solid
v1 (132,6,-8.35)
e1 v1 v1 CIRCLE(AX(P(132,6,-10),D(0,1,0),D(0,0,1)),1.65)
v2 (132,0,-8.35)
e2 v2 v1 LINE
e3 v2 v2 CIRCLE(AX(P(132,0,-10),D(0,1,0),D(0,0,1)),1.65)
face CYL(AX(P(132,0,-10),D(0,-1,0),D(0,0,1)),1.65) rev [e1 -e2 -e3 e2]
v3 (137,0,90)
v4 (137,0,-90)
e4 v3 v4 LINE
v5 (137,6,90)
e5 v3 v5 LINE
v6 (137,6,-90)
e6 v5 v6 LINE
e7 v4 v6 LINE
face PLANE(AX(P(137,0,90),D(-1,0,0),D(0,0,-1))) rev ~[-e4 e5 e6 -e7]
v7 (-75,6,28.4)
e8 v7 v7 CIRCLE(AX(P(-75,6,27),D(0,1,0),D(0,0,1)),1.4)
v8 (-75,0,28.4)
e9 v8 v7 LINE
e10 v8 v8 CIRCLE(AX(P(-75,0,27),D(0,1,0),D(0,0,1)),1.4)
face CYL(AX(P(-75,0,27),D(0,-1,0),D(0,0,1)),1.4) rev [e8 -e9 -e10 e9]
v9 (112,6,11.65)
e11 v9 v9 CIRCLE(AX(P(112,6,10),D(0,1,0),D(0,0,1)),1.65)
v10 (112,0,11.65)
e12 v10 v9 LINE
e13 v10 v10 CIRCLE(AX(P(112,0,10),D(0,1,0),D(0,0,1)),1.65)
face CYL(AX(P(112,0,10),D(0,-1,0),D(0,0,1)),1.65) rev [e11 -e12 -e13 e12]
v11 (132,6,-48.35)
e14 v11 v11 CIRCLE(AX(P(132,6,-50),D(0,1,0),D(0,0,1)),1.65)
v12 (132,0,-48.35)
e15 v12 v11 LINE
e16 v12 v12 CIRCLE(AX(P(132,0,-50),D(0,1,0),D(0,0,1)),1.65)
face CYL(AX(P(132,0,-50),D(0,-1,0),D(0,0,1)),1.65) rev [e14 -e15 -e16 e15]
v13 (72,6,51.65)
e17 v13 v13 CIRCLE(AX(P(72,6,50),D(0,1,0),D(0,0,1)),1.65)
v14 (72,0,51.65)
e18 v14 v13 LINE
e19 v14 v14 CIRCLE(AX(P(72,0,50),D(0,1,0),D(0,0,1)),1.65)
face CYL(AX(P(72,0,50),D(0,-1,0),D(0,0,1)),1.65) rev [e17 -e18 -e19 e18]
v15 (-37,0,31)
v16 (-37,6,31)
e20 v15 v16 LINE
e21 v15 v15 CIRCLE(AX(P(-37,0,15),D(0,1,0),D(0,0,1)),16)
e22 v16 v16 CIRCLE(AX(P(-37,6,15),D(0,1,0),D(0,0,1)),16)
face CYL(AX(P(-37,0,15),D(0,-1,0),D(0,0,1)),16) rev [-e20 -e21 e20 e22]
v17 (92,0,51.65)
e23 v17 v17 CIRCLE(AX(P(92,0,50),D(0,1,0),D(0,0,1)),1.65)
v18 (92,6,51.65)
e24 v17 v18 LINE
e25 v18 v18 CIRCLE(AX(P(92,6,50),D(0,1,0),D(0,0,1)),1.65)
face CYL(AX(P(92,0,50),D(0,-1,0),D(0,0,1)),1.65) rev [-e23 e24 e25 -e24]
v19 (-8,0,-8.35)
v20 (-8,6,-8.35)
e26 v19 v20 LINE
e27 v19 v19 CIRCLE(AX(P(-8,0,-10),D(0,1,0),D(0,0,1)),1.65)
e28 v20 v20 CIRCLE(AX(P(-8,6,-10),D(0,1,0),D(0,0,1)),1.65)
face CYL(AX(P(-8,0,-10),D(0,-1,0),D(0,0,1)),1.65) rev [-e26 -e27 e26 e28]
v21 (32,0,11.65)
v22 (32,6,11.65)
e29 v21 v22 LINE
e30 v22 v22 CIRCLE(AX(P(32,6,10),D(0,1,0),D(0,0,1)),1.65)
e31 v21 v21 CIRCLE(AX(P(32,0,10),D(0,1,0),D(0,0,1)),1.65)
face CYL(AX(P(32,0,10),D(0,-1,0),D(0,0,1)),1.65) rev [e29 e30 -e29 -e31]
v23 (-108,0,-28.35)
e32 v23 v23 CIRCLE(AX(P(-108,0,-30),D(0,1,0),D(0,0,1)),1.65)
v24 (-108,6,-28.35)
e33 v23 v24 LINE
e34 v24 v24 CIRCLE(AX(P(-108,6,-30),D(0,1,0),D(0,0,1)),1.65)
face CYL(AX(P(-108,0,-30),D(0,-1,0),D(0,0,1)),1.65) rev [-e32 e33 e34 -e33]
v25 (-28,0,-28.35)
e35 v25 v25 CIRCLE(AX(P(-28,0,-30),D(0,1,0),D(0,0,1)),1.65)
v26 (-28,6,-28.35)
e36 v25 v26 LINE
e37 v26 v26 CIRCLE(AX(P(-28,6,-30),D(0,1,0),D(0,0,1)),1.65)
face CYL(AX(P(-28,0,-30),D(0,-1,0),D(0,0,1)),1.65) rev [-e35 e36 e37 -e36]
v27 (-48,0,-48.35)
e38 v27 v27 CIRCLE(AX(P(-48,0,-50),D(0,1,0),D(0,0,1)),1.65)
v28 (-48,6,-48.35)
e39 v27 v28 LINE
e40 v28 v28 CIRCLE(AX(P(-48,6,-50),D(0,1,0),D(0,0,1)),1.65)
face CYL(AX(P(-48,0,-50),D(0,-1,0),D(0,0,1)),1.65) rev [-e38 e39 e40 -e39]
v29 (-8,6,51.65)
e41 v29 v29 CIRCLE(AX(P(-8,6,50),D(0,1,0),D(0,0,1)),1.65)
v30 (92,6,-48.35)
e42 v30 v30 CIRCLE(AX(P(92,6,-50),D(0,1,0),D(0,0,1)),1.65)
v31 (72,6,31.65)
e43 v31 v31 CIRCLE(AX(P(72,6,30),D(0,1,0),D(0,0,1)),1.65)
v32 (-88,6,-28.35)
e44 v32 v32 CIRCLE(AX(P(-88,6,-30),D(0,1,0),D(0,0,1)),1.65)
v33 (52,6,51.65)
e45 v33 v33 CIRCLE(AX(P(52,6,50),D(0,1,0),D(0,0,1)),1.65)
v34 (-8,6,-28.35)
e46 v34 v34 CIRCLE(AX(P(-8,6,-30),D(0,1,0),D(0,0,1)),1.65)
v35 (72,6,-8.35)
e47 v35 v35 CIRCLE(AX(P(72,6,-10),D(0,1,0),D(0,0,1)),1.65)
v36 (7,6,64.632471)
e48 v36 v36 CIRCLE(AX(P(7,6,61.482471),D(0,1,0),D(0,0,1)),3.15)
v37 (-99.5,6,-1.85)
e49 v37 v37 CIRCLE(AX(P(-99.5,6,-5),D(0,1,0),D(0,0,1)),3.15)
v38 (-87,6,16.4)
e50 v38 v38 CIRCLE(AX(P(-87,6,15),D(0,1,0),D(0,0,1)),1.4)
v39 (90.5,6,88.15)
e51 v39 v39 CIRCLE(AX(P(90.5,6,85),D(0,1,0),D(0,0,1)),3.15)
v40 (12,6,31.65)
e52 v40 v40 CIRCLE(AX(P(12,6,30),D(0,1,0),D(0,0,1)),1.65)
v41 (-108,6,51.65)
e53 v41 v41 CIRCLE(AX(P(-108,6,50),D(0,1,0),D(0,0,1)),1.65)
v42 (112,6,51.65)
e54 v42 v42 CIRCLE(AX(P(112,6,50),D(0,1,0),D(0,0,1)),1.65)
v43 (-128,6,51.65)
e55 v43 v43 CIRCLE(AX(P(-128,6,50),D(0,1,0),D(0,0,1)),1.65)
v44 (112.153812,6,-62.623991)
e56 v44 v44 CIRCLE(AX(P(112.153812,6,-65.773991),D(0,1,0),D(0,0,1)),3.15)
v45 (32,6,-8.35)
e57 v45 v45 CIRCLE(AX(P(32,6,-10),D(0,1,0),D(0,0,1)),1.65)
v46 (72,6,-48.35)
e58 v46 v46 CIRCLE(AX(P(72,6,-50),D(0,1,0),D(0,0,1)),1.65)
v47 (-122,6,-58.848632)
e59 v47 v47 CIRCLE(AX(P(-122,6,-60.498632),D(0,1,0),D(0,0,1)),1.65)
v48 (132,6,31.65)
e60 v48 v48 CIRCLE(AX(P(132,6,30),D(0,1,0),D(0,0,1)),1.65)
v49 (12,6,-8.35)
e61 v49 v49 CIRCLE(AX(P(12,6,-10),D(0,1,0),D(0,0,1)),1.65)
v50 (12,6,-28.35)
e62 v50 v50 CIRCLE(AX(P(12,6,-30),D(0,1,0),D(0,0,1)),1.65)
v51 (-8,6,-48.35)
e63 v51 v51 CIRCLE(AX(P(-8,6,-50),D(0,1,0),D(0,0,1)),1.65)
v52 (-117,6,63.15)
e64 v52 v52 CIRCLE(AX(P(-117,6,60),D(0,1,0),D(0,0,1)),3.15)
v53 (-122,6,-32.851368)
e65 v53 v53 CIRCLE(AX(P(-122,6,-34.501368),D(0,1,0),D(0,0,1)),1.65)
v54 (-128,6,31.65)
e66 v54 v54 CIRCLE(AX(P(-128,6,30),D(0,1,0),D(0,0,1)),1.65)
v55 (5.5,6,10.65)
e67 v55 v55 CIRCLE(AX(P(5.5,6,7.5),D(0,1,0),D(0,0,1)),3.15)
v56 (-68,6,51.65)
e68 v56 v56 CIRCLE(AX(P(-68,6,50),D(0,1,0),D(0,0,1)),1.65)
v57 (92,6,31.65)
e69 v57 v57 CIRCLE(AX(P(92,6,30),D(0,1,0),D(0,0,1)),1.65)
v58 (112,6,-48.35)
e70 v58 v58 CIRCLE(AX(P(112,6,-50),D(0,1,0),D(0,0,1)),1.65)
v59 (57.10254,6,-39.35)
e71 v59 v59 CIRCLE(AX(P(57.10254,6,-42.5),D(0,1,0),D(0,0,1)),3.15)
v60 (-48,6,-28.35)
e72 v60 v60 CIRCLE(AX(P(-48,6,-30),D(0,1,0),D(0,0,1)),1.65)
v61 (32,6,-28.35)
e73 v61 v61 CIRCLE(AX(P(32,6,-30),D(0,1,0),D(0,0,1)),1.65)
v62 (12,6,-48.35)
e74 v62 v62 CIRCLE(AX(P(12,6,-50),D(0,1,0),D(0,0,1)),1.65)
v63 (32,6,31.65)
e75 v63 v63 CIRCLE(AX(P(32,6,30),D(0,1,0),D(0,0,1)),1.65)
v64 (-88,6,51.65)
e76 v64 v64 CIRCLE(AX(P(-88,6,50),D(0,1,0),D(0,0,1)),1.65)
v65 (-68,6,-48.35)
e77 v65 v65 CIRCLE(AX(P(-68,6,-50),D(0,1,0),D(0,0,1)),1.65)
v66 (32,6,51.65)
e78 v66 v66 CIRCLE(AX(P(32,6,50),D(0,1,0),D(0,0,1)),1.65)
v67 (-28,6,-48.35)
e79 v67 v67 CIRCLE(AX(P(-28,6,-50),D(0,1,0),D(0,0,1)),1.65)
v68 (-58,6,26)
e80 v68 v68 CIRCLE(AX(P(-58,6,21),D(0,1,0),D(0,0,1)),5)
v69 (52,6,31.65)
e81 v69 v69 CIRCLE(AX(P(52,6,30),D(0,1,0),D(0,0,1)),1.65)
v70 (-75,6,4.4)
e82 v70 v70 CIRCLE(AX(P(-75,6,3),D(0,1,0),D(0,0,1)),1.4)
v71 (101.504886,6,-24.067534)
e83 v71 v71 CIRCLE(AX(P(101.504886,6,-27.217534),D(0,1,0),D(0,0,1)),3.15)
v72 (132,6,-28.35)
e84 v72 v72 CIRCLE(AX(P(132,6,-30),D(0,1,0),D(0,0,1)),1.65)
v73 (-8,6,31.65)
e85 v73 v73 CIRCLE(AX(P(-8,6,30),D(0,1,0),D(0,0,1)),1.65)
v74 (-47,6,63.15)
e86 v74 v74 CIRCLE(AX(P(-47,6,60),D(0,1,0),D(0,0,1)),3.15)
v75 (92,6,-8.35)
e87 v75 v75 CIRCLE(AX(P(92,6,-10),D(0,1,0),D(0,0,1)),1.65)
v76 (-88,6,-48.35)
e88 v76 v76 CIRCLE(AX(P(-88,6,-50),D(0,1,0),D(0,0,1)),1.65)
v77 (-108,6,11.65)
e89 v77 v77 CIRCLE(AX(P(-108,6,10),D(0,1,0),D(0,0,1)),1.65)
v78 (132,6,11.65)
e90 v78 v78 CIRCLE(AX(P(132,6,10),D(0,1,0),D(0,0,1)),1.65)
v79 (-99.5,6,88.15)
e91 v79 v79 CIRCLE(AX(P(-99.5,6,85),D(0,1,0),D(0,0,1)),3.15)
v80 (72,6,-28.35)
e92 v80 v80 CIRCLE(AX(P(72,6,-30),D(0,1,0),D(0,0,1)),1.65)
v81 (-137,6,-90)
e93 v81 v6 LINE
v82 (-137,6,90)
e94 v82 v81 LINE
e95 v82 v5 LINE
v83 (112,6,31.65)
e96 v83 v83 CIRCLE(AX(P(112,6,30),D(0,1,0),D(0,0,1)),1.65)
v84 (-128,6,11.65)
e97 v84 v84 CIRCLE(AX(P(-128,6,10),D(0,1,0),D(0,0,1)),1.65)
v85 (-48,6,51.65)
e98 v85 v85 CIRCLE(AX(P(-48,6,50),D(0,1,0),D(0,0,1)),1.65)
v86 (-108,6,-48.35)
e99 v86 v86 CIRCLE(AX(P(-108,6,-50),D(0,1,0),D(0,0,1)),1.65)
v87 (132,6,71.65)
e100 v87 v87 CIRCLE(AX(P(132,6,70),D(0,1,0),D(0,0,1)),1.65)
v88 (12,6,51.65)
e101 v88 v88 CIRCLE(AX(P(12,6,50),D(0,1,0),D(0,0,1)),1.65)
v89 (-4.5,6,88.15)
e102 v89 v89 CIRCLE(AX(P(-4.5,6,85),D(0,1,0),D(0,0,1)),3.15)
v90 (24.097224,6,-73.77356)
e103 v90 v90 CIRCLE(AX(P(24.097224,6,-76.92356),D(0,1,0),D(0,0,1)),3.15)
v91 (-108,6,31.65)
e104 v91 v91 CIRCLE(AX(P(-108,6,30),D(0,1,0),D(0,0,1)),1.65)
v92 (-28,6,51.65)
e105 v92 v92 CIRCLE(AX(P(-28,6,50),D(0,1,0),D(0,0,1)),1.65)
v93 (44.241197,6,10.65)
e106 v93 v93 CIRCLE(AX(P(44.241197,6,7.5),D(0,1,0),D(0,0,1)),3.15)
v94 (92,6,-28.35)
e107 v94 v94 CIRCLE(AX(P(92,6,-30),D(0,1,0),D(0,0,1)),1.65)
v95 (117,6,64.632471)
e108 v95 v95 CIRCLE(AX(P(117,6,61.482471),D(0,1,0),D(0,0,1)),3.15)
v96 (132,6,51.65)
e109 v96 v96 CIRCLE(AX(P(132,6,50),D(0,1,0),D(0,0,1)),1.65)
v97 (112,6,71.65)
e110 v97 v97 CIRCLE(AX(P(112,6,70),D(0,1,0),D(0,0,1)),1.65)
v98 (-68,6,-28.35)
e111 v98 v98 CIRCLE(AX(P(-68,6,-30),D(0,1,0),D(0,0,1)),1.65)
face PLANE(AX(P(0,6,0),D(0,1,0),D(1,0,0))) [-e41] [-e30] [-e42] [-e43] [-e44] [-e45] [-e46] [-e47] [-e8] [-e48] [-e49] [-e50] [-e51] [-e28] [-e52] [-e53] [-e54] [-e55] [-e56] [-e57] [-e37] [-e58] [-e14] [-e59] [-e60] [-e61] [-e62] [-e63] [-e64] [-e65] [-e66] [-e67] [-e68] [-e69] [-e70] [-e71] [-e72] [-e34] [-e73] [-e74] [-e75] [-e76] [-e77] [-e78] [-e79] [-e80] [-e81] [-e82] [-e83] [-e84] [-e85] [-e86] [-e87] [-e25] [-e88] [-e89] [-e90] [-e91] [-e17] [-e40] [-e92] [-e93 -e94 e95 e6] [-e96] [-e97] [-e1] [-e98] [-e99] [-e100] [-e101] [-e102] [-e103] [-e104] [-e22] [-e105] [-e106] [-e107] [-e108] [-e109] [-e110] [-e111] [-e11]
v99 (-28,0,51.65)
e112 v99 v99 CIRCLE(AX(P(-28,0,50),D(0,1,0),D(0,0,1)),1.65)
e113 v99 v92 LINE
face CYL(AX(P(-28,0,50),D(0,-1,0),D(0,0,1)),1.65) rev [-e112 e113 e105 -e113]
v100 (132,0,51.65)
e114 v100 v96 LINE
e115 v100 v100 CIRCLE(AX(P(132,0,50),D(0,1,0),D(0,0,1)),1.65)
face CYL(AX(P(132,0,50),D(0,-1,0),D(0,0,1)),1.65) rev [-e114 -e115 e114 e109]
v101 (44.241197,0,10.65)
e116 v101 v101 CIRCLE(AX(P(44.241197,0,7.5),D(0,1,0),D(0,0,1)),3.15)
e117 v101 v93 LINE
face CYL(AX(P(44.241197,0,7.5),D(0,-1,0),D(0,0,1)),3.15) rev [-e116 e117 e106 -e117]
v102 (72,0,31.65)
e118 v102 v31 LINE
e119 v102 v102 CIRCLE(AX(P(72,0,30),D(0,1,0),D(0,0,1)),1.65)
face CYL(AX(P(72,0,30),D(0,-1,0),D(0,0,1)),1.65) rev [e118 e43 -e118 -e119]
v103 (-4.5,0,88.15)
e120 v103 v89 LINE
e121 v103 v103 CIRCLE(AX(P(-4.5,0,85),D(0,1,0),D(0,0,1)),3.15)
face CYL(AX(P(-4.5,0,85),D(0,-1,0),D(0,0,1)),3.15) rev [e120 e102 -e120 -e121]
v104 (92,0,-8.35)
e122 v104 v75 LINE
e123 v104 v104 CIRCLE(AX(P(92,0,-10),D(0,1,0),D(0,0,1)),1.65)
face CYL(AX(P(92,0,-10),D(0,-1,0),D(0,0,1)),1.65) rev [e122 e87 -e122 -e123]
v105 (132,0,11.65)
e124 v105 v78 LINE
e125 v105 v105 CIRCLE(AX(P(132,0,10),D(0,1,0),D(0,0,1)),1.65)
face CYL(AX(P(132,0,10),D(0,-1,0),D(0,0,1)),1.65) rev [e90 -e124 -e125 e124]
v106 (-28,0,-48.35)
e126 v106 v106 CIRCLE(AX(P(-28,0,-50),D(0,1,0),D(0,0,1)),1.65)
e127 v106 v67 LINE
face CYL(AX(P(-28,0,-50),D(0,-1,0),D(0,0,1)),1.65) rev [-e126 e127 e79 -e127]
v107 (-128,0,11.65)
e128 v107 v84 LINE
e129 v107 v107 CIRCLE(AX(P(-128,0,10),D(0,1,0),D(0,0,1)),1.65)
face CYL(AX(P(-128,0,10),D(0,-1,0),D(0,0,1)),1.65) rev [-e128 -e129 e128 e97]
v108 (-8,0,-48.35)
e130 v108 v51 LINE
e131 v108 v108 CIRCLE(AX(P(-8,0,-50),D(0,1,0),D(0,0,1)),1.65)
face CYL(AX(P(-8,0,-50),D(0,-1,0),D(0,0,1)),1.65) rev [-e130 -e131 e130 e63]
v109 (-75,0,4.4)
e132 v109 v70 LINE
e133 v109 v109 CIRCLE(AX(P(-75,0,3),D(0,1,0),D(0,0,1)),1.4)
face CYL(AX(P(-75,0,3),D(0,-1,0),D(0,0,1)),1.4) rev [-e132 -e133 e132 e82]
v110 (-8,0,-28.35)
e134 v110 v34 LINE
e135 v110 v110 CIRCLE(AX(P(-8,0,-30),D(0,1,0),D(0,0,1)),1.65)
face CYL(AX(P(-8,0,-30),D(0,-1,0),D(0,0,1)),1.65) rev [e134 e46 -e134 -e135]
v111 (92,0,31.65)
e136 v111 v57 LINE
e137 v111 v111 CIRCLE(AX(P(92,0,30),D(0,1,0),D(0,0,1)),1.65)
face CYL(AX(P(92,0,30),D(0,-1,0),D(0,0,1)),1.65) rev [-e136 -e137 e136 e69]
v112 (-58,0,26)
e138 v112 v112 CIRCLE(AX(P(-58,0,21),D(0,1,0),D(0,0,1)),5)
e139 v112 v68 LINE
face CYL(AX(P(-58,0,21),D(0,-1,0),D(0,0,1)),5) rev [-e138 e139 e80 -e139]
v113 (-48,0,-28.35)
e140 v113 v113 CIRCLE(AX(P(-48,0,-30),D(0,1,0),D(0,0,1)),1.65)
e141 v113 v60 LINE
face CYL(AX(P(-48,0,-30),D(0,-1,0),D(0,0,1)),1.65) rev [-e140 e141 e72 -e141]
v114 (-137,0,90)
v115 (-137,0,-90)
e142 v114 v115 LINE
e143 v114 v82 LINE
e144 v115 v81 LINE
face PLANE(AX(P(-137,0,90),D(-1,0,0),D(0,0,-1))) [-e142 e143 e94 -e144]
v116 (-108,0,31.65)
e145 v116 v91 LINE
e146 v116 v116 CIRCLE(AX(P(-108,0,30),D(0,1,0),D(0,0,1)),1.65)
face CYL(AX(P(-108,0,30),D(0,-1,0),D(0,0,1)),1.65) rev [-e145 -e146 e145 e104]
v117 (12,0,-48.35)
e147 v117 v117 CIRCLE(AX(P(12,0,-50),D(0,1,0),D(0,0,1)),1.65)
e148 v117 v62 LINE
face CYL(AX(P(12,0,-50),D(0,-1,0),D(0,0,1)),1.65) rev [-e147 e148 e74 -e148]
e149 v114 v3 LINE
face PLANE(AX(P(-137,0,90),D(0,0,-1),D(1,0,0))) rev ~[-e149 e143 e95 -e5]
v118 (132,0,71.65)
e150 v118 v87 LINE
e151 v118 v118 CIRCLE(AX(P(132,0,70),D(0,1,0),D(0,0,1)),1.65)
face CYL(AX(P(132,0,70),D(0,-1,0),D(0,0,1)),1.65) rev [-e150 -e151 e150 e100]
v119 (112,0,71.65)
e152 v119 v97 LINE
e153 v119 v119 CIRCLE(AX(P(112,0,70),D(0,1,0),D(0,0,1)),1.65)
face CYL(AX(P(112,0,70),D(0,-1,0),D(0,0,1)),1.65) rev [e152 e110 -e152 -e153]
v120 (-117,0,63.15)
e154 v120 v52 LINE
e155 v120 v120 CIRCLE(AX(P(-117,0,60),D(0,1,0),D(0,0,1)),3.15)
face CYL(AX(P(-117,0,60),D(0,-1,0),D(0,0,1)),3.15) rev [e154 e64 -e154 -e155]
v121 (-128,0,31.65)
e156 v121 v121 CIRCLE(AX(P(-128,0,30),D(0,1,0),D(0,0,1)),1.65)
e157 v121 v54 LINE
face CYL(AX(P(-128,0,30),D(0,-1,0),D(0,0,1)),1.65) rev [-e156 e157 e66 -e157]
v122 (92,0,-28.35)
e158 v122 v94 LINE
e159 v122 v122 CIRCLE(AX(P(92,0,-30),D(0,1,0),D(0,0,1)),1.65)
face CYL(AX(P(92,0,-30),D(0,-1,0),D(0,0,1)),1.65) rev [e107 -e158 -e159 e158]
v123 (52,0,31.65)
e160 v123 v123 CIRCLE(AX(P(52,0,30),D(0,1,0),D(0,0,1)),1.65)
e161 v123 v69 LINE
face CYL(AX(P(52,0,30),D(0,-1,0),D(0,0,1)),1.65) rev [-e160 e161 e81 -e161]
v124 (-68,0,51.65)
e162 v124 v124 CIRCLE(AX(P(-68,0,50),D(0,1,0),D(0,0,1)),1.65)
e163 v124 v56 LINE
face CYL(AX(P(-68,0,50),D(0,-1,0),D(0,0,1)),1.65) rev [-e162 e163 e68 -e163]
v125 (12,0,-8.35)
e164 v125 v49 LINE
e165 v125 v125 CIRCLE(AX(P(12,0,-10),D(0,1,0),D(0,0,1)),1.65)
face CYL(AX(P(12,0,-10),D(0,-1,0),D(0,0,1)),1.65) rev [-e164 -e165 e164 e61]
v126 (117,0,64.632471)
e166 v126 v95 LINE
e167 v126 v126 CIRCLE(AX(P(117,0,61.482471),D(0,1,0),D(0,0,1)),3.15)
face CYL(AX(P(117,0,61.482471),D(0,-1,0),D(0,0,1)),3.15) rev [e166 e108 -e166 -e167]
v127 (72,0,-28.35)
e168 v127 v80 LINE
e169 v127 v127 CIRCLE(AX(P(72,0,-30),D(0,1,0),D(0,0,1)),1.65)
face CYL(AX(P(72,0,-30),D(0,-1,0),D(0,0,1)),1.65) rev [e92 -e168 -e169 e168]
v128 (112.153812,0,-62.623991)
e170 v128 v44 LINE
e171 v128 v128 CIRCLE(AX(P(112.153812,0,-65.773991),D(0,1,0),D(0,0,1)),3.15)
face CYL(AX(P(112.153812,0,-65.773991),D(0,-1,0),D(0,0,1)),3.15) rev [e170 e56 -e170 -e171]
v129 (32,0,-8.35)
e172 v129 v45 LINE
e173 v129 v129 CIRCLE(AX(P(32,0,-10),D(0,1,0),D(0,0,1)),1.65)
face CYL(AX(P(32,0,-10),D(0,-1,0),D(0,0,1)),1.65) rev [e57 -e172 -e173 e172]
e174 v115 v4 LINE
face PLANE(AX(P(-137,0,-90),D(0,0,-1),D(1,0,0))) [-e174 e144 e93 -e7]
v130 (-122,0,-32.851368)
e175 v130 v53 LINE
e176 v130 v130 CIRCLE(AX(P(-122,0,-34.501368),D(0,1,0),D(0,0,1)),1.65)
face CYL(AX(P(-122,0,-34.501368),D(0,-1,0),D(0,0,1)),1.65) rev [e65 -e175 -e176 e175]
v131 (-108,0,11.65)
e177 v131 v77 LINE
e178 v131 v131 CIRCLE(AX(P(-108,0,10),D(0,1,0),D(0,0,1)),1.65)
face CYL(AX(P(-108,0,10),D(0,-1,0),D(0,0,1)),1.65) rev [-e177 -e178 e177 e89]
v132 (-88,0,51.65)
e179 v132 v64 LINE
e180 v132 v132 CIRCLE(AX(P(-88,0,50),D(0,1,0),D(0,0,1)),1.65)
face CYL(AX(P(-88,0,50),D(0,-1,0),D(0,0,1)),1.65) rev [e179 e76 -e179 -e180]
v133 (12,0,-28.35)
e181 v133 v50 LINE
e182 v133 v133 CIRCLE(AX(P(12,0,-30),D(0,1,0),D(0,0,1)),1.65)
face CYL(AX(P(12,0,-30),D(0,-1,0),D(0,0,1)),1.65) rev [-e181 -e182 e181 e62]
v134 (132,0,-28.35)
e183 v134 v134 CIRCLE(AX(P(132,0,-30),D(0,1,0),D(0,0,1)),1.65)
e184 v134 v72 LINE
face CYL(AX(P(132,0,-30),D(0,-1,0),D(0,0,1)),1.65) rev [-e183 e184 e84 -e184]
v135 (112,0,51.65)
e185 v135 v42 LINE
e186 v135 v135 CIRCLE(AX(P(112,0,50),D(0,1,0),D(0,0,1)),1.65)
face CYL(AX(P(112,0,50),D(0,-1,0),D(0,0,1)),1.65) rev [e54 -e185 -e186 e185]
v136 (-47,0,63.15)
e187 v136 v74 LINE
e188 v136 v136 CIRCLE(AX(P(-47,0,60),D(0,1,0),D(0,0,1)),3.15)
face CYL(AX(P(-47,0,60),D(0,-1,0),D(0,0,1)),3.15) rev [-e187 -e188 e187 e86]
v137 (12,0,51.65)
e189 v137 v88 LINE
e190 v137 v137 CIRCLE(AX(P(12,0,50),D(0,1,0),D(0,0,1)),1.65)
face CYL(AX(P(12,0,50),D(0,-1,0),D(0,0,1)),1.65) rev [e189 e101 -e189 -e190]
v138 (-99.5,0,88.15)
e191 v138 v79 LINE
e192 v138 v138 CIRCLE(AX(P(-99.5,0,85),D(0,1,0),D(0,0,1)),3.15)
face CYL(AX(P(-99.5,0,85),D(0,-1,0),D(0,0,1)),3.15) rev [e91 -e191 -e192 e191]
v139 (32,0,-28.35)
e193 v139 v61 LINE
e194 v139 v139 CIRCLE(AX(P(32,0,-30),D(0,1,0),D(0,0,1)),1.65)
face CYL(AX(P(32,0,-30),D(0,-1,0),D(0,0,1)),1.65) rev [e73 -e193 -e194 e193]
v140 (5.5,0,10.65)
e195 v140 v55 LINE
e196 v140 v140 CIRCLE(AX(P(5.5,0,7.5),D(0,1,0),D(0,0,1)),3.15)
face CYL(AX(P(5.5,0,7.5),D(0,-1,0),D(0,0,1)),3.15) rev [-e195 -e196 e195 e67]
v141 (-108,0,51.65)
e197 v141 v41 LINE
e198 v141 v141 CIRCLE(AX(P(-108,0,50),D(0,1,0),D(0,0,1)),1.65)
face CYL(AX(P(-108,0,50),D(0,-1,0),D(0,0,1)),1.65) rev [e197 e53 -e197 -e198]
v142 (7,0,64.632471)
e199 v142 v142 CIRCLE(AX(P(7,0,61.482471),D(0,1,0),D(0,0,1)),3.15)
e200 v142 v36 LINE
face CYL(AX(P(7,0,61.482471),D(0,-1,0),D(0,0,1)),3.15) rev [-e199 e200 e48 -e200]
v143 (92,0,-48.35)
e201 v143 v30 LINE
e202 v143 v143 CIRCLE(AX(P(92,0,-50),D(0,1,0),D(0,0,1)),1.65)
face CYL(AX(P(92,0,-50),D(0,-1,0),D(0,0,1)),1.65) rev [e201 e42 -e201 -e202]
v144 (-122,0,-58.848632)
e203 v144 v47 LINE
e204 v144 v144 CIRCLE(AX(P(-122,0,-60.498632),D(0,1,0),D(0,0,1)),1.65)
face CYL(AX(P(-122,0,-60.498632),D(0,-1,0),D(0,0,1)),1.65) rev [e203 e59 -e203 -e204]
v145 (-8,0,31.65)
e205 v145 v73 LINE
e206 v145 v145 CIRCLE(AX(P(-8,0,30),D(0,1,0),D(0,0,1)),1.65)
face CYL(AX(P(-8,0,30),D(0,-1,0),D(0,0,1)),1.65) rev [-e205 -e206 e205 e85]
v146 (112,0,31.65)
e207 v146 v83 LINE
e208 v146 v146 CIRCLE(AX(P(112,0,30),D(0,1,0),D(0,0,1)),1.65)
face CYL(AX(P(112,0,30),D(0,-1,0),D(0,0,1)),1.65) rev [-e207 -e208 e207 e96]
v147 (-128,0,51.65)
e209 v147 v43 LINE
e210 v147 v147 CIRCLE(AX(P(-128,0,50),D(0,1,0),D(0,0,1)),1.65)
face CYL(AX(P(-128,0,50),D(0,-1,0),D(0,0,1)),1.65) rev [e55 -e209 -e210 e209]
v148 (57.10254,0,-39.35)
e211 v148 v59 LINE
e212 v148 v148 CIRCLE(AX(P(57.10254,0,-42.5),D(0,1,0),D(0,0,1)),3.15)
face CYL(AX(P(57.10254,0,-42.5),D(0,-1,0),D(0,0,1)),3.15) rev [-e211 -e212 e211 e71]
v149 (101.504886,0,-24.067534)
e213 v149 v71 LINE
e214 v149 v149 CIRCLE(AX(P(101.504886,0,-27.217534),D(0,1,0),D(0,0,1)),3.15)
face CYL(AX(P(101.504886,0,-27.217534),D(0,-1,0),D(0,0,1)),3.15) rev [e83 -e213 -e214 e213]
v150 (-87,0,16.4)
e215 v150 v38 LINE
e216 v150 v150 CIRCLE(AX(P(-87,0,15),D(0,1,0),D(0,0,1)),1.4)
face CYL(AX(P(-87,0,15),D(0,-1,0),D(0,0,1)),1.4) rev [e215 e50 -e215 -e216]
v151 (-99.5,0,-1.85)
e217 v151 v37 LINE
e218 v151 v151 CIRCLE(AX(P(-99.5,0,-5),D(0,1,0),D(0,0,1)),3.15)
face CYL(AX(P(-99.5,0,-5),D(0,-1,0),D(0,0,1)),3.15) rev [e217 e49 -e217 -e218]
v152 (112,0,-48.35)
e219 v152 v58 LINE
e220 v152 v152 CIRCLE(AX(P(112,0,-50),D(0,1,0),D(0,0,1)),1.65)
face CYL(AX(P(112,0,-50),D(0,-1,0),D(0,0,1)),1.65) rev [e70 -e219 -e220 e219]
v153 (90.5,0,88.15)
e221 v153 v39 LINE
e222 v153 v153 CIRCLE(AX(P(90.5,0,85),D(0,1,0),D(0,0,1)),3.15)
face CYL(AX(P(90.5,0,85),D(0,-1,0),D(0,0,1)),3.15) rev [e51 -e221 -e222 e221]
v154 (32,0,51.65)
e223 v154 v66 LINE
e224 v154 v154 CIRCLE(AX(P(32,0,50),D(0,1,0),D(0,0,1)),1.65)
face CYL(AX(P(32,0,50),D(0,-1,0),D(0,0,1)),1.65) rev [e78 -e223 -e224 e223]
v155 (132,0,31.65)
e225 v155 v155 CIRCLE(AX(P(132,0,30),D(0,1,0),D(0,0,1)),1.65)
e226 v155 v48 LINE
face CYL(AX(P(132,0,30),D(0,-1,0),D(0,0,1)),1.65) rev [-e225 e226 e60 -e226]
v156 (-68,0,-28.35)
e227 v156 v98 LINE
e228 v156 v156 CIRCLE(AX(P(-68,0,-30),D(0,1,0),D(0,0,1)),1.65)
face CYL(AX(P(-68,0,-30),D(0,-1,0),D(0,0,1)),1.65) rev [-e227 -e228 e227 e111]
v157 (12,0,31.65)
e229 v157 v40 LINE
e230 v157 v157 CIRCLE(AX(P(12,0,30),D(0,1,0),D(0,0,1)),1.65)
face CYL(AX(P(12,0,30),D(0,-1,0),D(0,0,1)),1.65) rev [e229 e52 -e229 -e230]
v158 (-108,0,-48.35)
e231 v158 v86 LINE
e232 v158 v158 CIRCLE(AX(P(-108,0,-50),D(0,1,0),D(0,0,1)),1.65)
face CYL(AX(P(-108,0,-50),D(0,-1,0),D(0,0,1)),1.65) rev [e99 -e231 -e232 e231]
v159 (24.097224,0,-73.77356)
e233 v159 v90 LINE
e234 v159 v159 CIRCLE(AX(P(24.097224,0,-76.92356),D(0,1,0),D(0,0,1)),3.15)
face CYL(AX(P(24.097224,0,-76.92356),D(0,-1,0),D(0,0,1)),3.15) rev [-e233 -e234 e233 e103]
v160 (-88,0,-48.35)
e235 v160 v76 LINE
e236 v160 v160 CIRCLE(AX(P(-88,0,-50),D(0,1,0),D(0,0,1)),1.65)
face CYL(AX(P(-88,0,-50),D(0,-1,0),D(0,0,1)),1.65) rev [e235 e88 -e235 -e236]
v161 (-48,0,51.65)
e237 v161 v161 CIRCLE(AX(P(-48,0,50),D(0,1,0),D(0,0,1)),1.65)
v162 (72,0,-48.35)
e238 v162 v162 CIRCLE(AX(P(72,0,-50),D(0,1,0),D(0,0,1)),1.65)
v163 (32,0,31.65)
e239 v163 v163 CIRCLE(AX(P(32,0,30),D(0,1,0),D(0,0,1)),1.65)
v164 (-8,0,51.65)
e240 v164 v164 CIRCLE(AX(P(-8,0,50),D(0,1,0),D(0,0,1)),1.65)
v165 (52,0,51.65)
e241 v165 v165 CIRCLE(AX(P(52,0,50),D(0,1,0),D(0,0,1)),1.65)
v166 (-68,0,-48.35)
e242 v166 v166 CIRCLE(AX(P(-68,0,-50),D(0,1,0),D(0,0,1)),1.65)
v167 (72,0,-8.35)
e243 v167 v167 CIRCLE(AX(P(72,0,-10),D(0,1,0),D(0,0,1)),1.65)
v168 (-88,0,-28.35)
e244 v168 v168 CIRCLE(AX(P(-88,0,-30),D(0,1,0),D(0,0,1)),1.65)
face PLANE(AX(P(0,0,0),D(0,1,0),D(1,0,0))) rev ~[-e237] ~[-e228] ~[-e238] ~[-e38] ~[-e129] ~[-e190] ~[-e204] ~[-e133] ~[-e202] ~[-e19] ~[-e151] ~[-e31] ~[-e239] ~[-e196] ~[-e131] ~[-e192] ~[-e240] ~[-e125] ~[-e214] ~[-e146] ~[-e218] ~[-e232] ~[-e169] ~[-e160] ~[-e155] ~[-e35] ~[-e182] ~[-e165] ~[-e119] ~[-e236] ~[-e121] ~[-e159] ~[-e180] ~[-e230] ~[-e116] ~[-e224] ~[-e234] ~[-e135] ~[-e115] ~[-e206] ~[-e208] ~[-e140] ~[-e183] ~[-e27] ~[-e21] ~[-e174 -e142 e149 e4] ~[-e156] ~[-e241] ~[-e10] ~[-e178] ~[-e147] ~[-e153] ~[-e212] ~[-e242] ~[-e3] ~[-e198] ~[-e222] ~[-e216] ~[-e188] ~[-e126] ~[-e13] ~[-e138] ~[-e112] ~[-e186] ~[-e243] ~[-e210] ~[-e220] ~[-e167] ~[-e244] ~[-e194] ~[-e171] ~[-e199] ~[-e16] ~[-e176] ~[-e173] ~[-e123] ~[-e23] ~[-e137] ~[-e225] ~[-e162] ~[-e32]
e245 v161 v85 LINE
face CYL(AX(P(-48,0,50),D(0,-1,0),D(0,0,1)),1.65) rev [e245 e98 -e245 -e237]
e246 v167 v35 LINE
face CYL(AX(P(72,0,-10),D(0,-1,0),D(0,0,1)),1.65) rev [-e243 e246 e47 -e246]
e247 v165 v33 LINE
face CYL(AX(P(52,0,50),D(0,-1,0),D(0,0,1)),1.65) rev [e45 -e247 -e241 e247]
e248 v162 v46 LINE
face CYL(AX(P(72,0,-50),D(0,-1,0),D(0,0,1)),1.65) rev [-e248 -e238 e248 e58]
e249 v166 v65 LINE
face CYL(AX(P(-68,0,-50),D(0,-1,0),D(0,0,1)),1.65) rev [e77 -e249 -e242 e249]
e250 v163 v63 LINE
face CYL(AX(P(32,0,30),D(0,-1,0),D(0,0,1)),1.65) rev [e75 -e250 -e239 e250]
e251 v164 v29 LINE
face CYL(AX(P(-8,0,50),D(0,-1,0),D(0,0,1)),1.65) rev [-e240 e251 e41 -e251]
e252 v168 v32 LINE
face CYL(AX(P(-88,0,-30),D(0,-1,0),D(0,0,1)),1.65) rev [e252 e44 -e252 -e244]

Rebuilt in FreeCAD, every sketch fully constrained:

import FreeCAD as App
import Part
import Sketcher
from FreeCAD import Vector

doc = App.newDocument("Part")
body = doc.addObject("PartDesign::Body", "Body")

# Sketch on XZ plane
sketch1 = body.newObject("Sketcher::SketchObject", "Sketch")
sketch1.AttachmentSupport = (doc.getObject("XZ_Plane"), [""])
sketch1.MapMode = "FlatFace"
sketch1.addGeometry([
    Part.LineSegment(Vector(-137, -90, 0), Vector(-137, 90, 0)),  # 0
    Part.LineSegment(Vector(-137, 90, 0), Vector(137, 90, 0)),  # 1
    Part.LineSegment(Vector(137, 90, 0), Vector(137, -90, 0)),  # 2
    Part.LineSegment(Vector(137, -90, 0), Vector(-137, -90, 0)),  # 3
    Part.Circle(Vector(-99.5, 85, 0), Vector(0, 0, 1), 3.15),  # 4
    Part.Circle(Vector(-117, 60, 0), Vector(0, 0, 1), 3.15),  # 5
    Part.Circle(Vector(-128, 50, 0), Vector(0, 0, 1), 1.65),  # 6
    Part.Circle(Vector(-108, 50, 0), Vector(0, 0, 1), 1.65),  # 7
    Part.Circle(Vector(-88, 50, 0), Vector(0, 0, 1), 1.65),  # 8
    Part.Circle(Vector(-68, 50, 0), Vector(0, 0, 1), 1.65),  # 9
    Part.Circle(Vector(-4.5, 85, 0), Vector(0, 0, 1), 3.15),  # 10
    Part.Circle(Vector(-47, 60, 0), Vector(0, 0, 1), 3.15),  # 11
    Part.Circle(Vector(-48, 50, 0), Vector(0, 0, 1), 1.65),  # 12
    Part.Circle(Vector(-28, 50, 0), Vector(0, 0, 1), 1.65),  # 13
    Part.Circle(Vector(-8, 50, 0), Vector(0, 0, 1), 1.65),  # 14
    Part.Circle(Vector(-128, 30, 0), Vector(0, 0, 1), 1.65),  # 15
    Part.Circle(Vector(-108, 30, 0), Vector(0, 0, 1), 1.65),  # 16
    Part.Circle(Vector(-75, 27, 0), Vector(0, 0, 1), 1.4),  # 17
    Part.Circle(Vector(-128, 10, 0), Vector(0, 0, 1), 1.65),  # 18
    Part.Circle(Vector(-108, 10, 0), Vector(0, 0, 1), 1.65),  # 19
    Part.Circle(Vector(-87, 15, 0), Vector(0, 0, 1), 1.4),  # 20
    Part.Circle(Vector(-8, 30, 0), Vector(0, 0, 1), 1.65),  # 21
    Part.Circle(Vector(-58, 21, 0), Vector(0, 0, 1), 5),  # 22
    Part.Circle(Vector(-37, 15, 0), Vector(0, 0, 1), 16),  # 23
    Part.Circle(Vector(7, 61.482471, 0), Vector(0, 0, 1), 3.15),  # 24
    Part.Circle(Vector(12, 50, 0), Vector(0, 0, 1), 1.65),  # 25
    Part.Circle(Vector(32, 50, 0), Vector(0, 0, 1), 1.65),  # 26
    Part.Circle(Vector(52, 50, 0), Vector(0, 0, 1), 1.65),  # 27
    Part.Circle(Vector(90.5, 85, 0), Vector(0, 0, 1), 3.15),  # 28
    Part.Circle(Vector(112, 70, 0), Vector(0, 0, 1), 1.65),  # 29
    Part.Circle(Vector(132, 70, 0), Vector(0, 0, 1), 1.65),  # 30
    Part.Circle(Vector(72, 50, 0), Vector(0, 0, 1), 1.65),  # 31
    Part.Circle(Vector(92, 50, 0), Vector(0, 0, 1), 1.65),  # 32
    Part.Circle(Vector(117, 61.482471, 0), Vector(0, 0, 1), 3.15),  # 33
    Part.Circle(Vector(112, 50, 0), Vector(0, 0, 1), 1.65),  # 34
    Part.Circle(Vector(132, 50, 0), Vector(0, 0, 1), 1.65),  # 35
    Part.Circle(Vector(12, 30, 0), Vector(0, 0, 1), 1.65),  # 36
    Part.Circle(Vector(32, 30, 0), Vector(0, 0, 1), 1.65),  # 37
    Part.Circle(Vector(52, 30, 0), Vector(0, 0, 1), 1.65),  # 38
    Part.Circle(Vector(5.5, 7.5, 0), Vector(0, 0, 1), 3.15),  # 39
    Part.Circle(Vector(32, 10, 0), Vector(0, 0, 1), 1.65),  # 40
    Part.Circle(Vector(44.241197, 7.5, 0), Vector(0, 0, 1), 3.15),  # 41
    Part.Circle(Vector(72, 30, 0), Vector(0, 0, 1), 1.65),  # 42
    Part.Circle(Vector(92, 30, 0), Vector(0, 0, 1), 1.65),  # 43
    Part.Circle(Vector(112, 30, 0), Vector(0, 0, 1), 1.65),  # 44
    Part.Circle(Vector(132, 30, 0), Vector(0, 0, 1), 1.65),  # 45
    Part.Circle(Vector(112, 10, 0), Vector(0, 0, 1), 1.65),  # 46
    Part.Circle(Vector(132, 10, 0), Vector(0, 0, 1), 1.65),  # 47
    Part.Circle(Vector(-99.5, -5, 0), Vector(0, 0, 1), 3.15),  # 48
    Part.Circle(Vector(-75, 3, 0), Vector(0, 0, 1), 1.4),  # 49
    Part.Circle(Vector(-122, -34.501368, 0), Vector(0, 0, 1), 1.65),  # 50
    Part.Circle(Vector(-108, -30, 0), Vector(0, 0, 1), 1.65),  # 51
    Part.Circle(Vector(-88, -30, 0), Vector(0, 0, 1), 1.65),  # 52
    Part.Circle(Vector(-68, -30, 0), Vector(0, 0, 1), 1.65),  # 53
    Part.Circle(Vector(-8, -10, 0), Vector(0, 0, 1), 1.65),  # 54
    Part.Circle(Vector(-48, -30, 0), Vector(0, 0, 1), 1.65),  # 55
    Part.Circle(Vector(-28, -30, 0), Vector(0, 0, 1), 1.65),  # 56
    Part.Circle(Vector(-8, -30, 0), Vector(0, 0, 1), 1.65),  # 57
    Part.Circle(Vector(-108, -50, 0), Vector(0, 0, 1), 1.65),  # 58
    Part.Circle(Vector(-88, -50, 0), Vector(0, 0, 1), 1.65),  # 59
    Part.Circle(Vector(-68, -50, 0), Vector(0, 0, 1), 1.65),  # 60
    Part.Circle(Vector(-122, -60.498632, 0), Vector(0, 0, 1), 1.65),  # 61
    Part.Circle(Vector(-48, -50, 0), Vector(0, 0, 1), 1.65),  # 62
    Part.Circle(Vector(-28, -50, 0), Vector(0, 0, 1), 1.65),  # 63
    Part.Circle(Vector(-8, -50, 0), Vector(0, 0, 1), 1.65),  # 64
    Part.Circle(Vector(12, -10, 0), Vector(0, 0, 1), 1.65),  # 65
    Part.Circle(Vector(32, -10, 0), Vector(0, 0, 1), 1.65),  # 66
    Part.Circle(Vector(12, -30, 0), Vector(0, 0, 1), 1.65),  # 67
    Part.Circle(Vector(32, -30, 0), Vector(0, 0, 1), 1.65),  # 68
    Part.Circle(Vector(72, -10, 0), Vector(0, 0, 1), 1.65),  # 69
    Part.Circle(Vector(92, -10, 0), Vector(0, 0, 1), 1.65),  # 70
    Part.Circle(Vector(132, -10, 0), Vector(0, 0, 1), 1.65),  # 71
    Part.Circle(Vector(72, -30, 0), Vector(0, 0, 1), 1.65),  # 72
    Part.Circle(Vector(92, -30, 0), Vector(0, 0, 1), 1.65),  # 73
    Part.Circle(Vector(101.504886, -27.217534, 0), Vector(0, 0, 1), 3.15),  # 74
    Part.Circle(Vector(132, -30, 0), Vector(0, 0, 1), 1.65),  # 75
    Part.Circle(Vector(12, -50, 0), Vector(0, 0, 1), 1.65),  # 76
    Part.Circle(Vector(57.10254, -42.5, 0), Vector(0, 0, 1), 3.15),  # 77
    Part.Circle(Vector(24.097224, -76.92356, 0), Vector(0, 0, 1), 3.15),  # 78
    Part.Circle(Vector(72, -50, 0), Vector(0, 0, 1), 1.65),  # 79
    Part.Circle(Vector(92, -50, 0), Vector(0, 0, 1), 1.65),  # 80
    Part.Circle(Vector(112, -50, 0), Vector(0, 0, 1), 1.65),  # 81
    Part.Circle(Vector(132, -50, 0), Vector(0, 0, 1), 1.65),  # 82
    Part.Circle(Vector(112.153812, -65.773991, 0), Vector(0, 0, 1), 3.15),  # 83
], False)
sketch1.addConstraint([
    Sketcher.Constraint("Coincident", 0, 2, 1, 1),
    Sketcher.Constraint("Coincident", 1, 2, 2, 1),
    Sketcher.Constraint("Coincident", 2, 2, 3, 1),
    Sketcher.Constraint("Coincident", 3, 2, 0, 1),
    Sketcher.Constraint("Vertical", 0),
    Sketcher.Constraint("Horizontal", 1),
    Sketcher.Constraint("Vertical", 2),
    Sketcher.Constraint("Horizontal", 3),
    Sketcher.Constraint("Equal", 4, 5),
    Sketcher.Constraint("Equal", 6, 7),
    Sketcher.Constraint("Equal", 7, 8),
    Sketcher.Constraint("Equal", 8, 9),
    Sketcher.Constraint("Equal", 5, 10),
    Sketcher.Constraint("Equal", 10, 11),
    Sketcher.Constraint("Equal", 9, 12),
    Sketcher.Constraint("Equal", 12, 13),
    Sketcher.Constraint("Equal", 13, 14),
    Sketcher.Constraint("Equal", 14, 15),
    Sketcher.Constraint("Equal", 15, 16),
    Sketcher.Constraint("Equal", 16, 18),
    Sketcher.Constraint("Equal", 18, 19),
    Sketcher.Constraint("Equal", 17, 20),
    Sketcher.Constraint("Equal", 19, 21),
    Sketcher.Constraint("Equal", 11, 24),
    Sketcher.Constraint("Equal", 21, 25),
    Sketcher.Constraint("Equal", 25, 26),
    Sketcher.Constraint("Equal", 26, 27),
    Sketcher.Constraint("Equal", 24, 28),
    Sketcher.Constraint("Equal", 27, 29),
    Sketcher.Constraint("Equal", 29, 30),
    Sketcher.Constraint("Equal", 30, 31),
    Sketcher.Constraint("Equal", 31, 32),
    Sketcher.Constraint("Equal", 28, 33),
    Sketcher.Constraint("Equal", 32, 34),
    Sketcher.Constraint("Equal", 34, 35),
    Sketcher.Constraint("Equal", 35, 36),
    Sketcher.Constraint("Equal", 36, 37),
    Sketcher.Constraint("Equal", 37, 38),
    Sketcher.Constraint("Equal", 33, 39),
    Sketcher.Constraint("Equal", 38, 40),
    Sketcher.Constraint("Equal", 39, 41),
    Sketcher.Constraint("Equal", 40, 42),
    Sketcher.Constraint("Equal", 42, 43),
    Sketcher.Constraint("Equal", 43, 44),
    Sketcher.Constraint("Equal", 44, 45),
    Sketcher.Constraint("Equal", 45, 46),
    Sketcher.Constraint("Equal", 46, 47),
    Sketcher.Constraint("Equal", 41, 48),
    Sketcher.Constraint("Equal", 20, 49),
    Sketcher.Constraint("Equal", 47, 50),
    Sketcher.Constraint("Equal", 50, 51),
    Sketcher.Constraint("Equal", 51, 52),
    Sketcher.Constraint("Equal", 52, 53),
    Sketcher.Constraint("Equal", 53, 54),
    Sketcher.Constraint("Equal", 54, 55),
    Sketcher.Constraint("Equal", 55, 56),
    Sketcher.Constraint("Equal", 56, 57),
    Sketcher.Constraint("Equal", 57, 58),
    Sketcher.Constraint("Equal", 58, 59),
    Sketcher.Constraint("Equal", 59, 60),
    Sketcher.Constraint("Equal", 60, 61),
    Sketcher.Constraint("Equal", 61, 62),
    Sketcher.Constraint("Equal", 62, 63),
    Sketcher.Constraint("Equal", 63, 64),
    Sketcher.Constraint("Equal", 64, 65),
    Sketcher.Constraint("Equal", 65, 66),
    Sketcher.Constraint("Equal", 66, 67),
    Sketcher.Constraint("Equal", 67, 68),
    Sketcher.Constraint("Equal", 68, 69),
    Sketcher.Constraint("Equal", 69, 70),
    Sketcher.Constraint("Equal", 70, 71),
    Sketcher.Constraint("Equal", 71, 72),
    Sketcher.Constraint("Equal", 72, 73),
    Sketcher.Constraint("Equal", 48, 74),
    Sketcher.Constraint("Equal", 73, 75),
    Sketcher.Constraint("Equal", 75, 76),
    Sketcher.Constraint("Equal", 74, 77),
    Sketcher.Constraint("Equal", 77, 78),
    Sketcher.Constraint("Equal", 76, 79),
    Sketcher.Constraint("Equal", 79, 80),
    Sketcher.Constraint("Equal", 80, 81),
    Sketcher.Constraint("Equal", 81, 82),
    Sketcher.Constraint("Equal", 78, 83),
    Sketcher.Constraint("Symmetric", 0, 2, 2, 2, -1, 1),
    Sketcher.Constraint("Symmetric", 16, 3, 51, 3, -1),
    Sketcher.Constraint("Symmetric", 21, 3, 57, 3, -1),
    Sketcher.Constraint("Symmetric", 7, 3, 58, 3, -1),
    Sketcher.Constraint("Symmetric", 8, 3, 59, 3, -1),
    Sketcher.Constraint("Symmetric", 9, 3, 60, 3, -1),
    Sketcher.Constraint("Symmetric", 12, 3, 62, 3, -1),
    Sketcher.Constraint("Symmetric", 13, 3, 63, 3, -1),
    Sketcher.Constraint("Symmetric", 14, 3, 64, 3, -1),
    Sketcher.Constraint("Symmetric", 40, 3, 66, 3, -1),
    Sketcher.Constraint("Symmetric", 36, 3, 67, 3, -1),
    Sketcher.Constraint("Symmetric", 37, 3, 68, 3, -1),
    Sketcher.Constraint("Symmetric", 47, 3, 71, 3, -1),
    Sketcher.Constraint("Symmetric", 42, 3, 72, 3, -1),
    Sketcher.Constraint("Symmetric", 43, 3, 73, 3, -1),
    Sketcher.Constraint("Symmetric", 45, 3, 75, 3, -1),
    Sketcher.Constraint("Symmetric", 25, 3, 76, 3, -1),
    Sketcher.Constraint("Symmetric", 31, 3, 79, 3, -1),
    Sketcher.Constraint("Symmetric", 32, 3, 80, 3, -1),
    Sketcher.Constraint("Symmetric", 34, 3, 81, 3, -1),
    Sketcher.Constraint("Symmetric", 35, 3, 82, 3, -1),
    Sketcher.Constraint("Horizontal", 6, 3, 7, 3),
    Sketcher.Constraint("Horizontal", 7, 3, 8, 3),
    Sketcher.Constraint("Horizontal", 8, 3, 9, 3),
    Sketcher.Constraint("Horizontal", 4, 3, 10, 3),
    Sketcher.Constraint("Horizontal", 5, 3, 11, 3),
    Sketcher.Constraint("Horizontal", 9, 3, 12, 3),
    Sketcher.Constraint("Horizontal", 12, 3, 13, 3),
    Sketcher.Constraint("Horizontal", 13, 3, 14, 3),
    Sketcher.Constraint("Horizontal", 15, 3, 16, 3),
    Sketcher.Constraint("Horizontal", 18, 3, 19, 3),
    Sketcher.Constraint("Horizontal", 16, 3, 21, 3),
    Sketcher.Constraint("Horizontal", 20, 3, 23, 3),
    Sketcher.Constraint("Horizontal", 14, 3, 25, 3),
    Sketcher.Constraint("Horizontal", 25, 3, 26, 3),
    Sketcher.Constraint("Horizontal", 26, 3, 27, 3),
    Sketcher.Constraint("Horizontal", 10, 3, 28, 3),
    Sketcher.Constraint("Horizontal", 29, 3, 30, 3),
    Sketcher.Constraint("Horizontal", 27, 3, 31, 3),
    Sketcher.Constraint("Horizontal", 31, 3, 32, 3),
    Sketcher.Constraint("Horizontal", 24, 3, 33, 3),
    Sketcher.Constraint("Horizontal", 32, 3, 34, 3),
    Sketcher.Constraint("Horizontal", 34, 3, 35, 3),
    Sketcher.Constraint("Horizontal", 21, 3, 36, 3),
    Sketcher.Constraint("Horizontal", 36, 3, 37, 3),
    Sketcher.Constraint("Horizontal", 37, 3, 38, 3),
    Sketcher.Constraint("Horizontal", 19, 3, 40, 3),
    Sketcher.Constraint("Horizontal", 39, 3, 41, 3),
    Sketcher.Constraint("Horizontal", 38, 3, 42, 3),
    Sketcher.Constraint("Horizontal", 42, 3, 43, 3),
    Sketcher.Constraint("Horizontal", 43, 3, 44, 3),
    Sketcher.Constraint("Horizontal", 44, 3, 45, 3),
    Sketcher.Constraint("Horizontal", 40, 3, 46, 3),
    Sketcher.Constraint("Horizontal", 46, 3, 47, 3),
    Sketcher.Constraint("Horizontal", 51, 3, 52, 3),
    Sketcher.Constraint("Horizontal", 52, 3, 53, 3),
    Sketcher.Constraint("Horizontal", 53, 3, 55, 3),
    Sketcher.Constraint("Horizontal", 55, 3, 56, 3),
    Sketcher.Constraint("Horizontal", 54, 3, 65, 3),
    Sketcher.Constraint("Horizontal", 65, 3, 66, 3),
    Sketcher.Constraint("Horizontal", 66, 3, 69, 3),
    Sketcher.Constraint("Horizontal", 69, 3, 70, 3),
    Sketcher.Constraint("Vertical", 6, 3, 15, 3),
    Sketcher.Constraint("Vertical", 7, 3, 16, 3),
    Sketcher.Constraint("Vertical", 15, 3, 18, 3),
    Sketcher.Constraint("Vertical", 16, 3, 19, 3),
    Sketcher.Constraint("Vertical", 14, 3, 21, 3),
    Sketcher.Constraint("Vertical", 29, 3, 34, 3),
    Sketcher.Constraint("Vertical", 30, 3, 35, 3),
    Sketcher.Constraint("Vertical", 25, 3, 36, 3),
    Sketcher.Constraint("Vertical", 26, 3, 37, 3),
    Sketcher.Constraint("Vertical", 27, 3, 38, 3),
    Sketcher.Constraint("Vertical", 37, 3, 40, 3),
    Sketcher.Constraint("Vertical", 31, 3, 42, 3),
    Sketcher.Constraint("Vertical", 32, 3, 43, 3),
    Sketcher.Constraint("Vertical", 34, 3, 44, 3),
    Sketcher.Constraint("Vertical", 35, 3, 45, 3),
    Sketcher.Constraint("Vertical", 44, 3, 46, 3),
    Sketcher.Constraint("Vertical", 45, 3, 47, 3),
    Sketcher.Constraint("Vertical", 4, 3, 48, 3),
    Sketcher.Constraint("Vertical", 17, 3, 49, 3),
    Sketcher.Constraint("Vertical", 8, 3, 52, 3),
    Sketcher.Constraint("Vertical", 9, 3, 53, 3),
    Sketcher.Constraint("Vertical", 21, 3, 54, 3),
    Sketcher.Constraint("Vertical", 12, 3, 55, 3),
    Sketcher.Constraint("Vertical", 13, 3, 56, 3),
    Sketcher.Constraint("Vertical", 50, 3, 61, 3),
    Sketcher.Constraint("Vertical", 36, 3, 65, 3),
    Sketcher.Constraint("Vertical", 42, 3, 69, 3),
    Sketcher.Constraint("Vertical", 43, 3, 70, 3),
    Sketcher.Constraint("Diameter", 22, 10.0),
    Sketcher.Constraint("Diameter", 23, 32.0),
    Sketcher.Constraint("Diameter", 4, 6.3),
    Sketcher.Constraint("Diameter", 6, 3.3),
    Sketcher.Constraint("Diameter", 17, 2.8),
    Sketcher.Constraint("DistanceX", 1, 1, 1, 2, 274.0),
    Sketcher.Constraint("DistanceY", 0, 1, 0, 2, 180.0),
    Sketcher.Constraint("DistanceY", -1, 1, 4, 3, 85.0),
    Sketcher.Constraint("DistanceX", 5, 3, -1, 1, 117.0),
    Sketcher.Constraint("DistanceY", -1, 1, 5, 3, 60.0),
    Sketcher.Constraint("DistanceX", 6, 3, -1, 1, 128.0),
    Sketcher.Constraint("DistanceY", -1, 1, 6, 3, 50.0),
    Sketcher.Constraint("DistanceX", 7, 3, -1, 1, 108.0),
    Sketcher.Constraint("DistanceX", 8, 3, -1, 1, 88.0),
    Sketcher.Constraint("DistanceX", 9, 3, -1, 1, 68.0),
    Sketcher.Constraint("DistanceX", 11, 3, -1, 1, 47.0),
    Sketcher.Constraint("DistanceX", 12, 3, -1, 1, 48.0),
    Sketcher.Constraint("DistanceX", 13, 3, -1, 1, 28.0),
    Sketcher.Constraint("DistanceX", 14, 3, -1, 1, 8.0),
    Sketcher.Constraint("DistanceY", -1, 1, 15, 3, 30.0),
    Sketcher.Constraint("DistanceX", 17, 3, -1, 1, 75.0),
    Sketcher.Constraint("DistanceY", -1, 1, 17, 3, 27.0),
    Sketcher.Constraint("DistanceY", -1, 1, 18, 3, 10.0),
    Sketcher.Constraint("DistanceX", 20, 3, -1, 1, 87.0),
    Sketcher.Constraint("DistanceY", -1, 1, 20, 3, 15.0),
    Sketcher.Constraint("DistanceX", 22, 3, -1, 1, 58.0),
    Sketcher.Constraint("DistanceY", -1, 1, 22, 3, 21.0),
    Sketcher.Constraint("DistanceX", 23, 3, -1, 1, 37.0),
    Sketcher.Constraint("DistanceX", -1, 1, 24, 3, 7.0),
    Sketcher.Constraint("DistanceX", -1, 1, 25, 3, 12.0),
    Sketcher.Constraint("DistanceX", -1, 1, 26, 3, 32.0),
    Sketcher.Constraint("DistanceX", -1, 1, 27, 3, 52.0),
    Sketcher.Constraint("DistanceX", -1, 1, 29, 3, 112.0),
    Sketcher.Constraint("DistanceY", -1, 1, 29, 3, 70.0),
    Sketcher.Constraint("DistanceX", -1, 1, 30, 3, 132.0),
    Sketcher.Constraint("DistanceX", -1, 1, 31, 3, 72.0),
    Sketcher.Constraint("DistanceX", -1, 1, 32, 3, 92.0),
    Sketcher.Constraint("DistanceX", -1, 1, 33, 3, 117.0),
    Sketcher.Constraint("DistanceY", 48, 3, -1, 1, 5.0),
    Sketcher.Constraint("DistanceY", -1, 1, 49, 3, 3.0),
    Sketcher.Constraint("DistanceX", 50, 3, -1, 1, 122.0),
    Sketcher.Constraint("DistanceX", 4, 3, -1, 1, 99.5),
    Sketcher.Constraint("DistanceX", 10, 3, -1, 1, 4.5),
    Sketcher.Constraint("DistanceX", -1, 1, 28, 3, 90.5),
    Sketcher.Constraint("DistanceX", -1, 1, 39, 3, 5.5),
    Sketcher.Constraint("DistanceY", -1, 1, 39, 3, 7.5),
    Sketcher.Constraint("DistanceY", 77, 3, -1, 1, 42.5),
    Sketcher.Constraint("DistanceY", -1, 1, 24, 3, 61.482471),
    Sketcher.Constraint("DistanceY", 50, 3, -1, 1, 34.501368),
    Sketcher.Constraint("DistanceY", 61, 3, -1, 1, 60.498632),
    Sketcher.Constraint("DistanceX", -1, 1, 77, 3, 57.10254),
    Sketcher.Constraint("DistanceY", 78, 3, -1, 1, 76.92356),
    Sketcher.Constraint("DistanceX", -1, 1, 83, 3, 112.153812),
    Sketcher.Constraint("DistanceY", 83, 3, -1, 1, 65.773991),
    Sketcher.Constraint("DistanceX", -1, 1, 41, 3, 44.241197),
    Sketcher.Constraint("DistanceX", -1, 1, 74, 3, 101.504886),
    Sketcher.Constraint("DistanceY", 74, 3, -1, 1, 27.217534),
    Sketcher.Constraint("DistanceX", -1, 1, 78, 3, 24.097224),
])
pad1 = body.newObject("PartDesign::Pad", "Pad")
pad1.Profile = sketch1
pad1.Length = 6
pad1.Reversed = True

doc.recompute()
